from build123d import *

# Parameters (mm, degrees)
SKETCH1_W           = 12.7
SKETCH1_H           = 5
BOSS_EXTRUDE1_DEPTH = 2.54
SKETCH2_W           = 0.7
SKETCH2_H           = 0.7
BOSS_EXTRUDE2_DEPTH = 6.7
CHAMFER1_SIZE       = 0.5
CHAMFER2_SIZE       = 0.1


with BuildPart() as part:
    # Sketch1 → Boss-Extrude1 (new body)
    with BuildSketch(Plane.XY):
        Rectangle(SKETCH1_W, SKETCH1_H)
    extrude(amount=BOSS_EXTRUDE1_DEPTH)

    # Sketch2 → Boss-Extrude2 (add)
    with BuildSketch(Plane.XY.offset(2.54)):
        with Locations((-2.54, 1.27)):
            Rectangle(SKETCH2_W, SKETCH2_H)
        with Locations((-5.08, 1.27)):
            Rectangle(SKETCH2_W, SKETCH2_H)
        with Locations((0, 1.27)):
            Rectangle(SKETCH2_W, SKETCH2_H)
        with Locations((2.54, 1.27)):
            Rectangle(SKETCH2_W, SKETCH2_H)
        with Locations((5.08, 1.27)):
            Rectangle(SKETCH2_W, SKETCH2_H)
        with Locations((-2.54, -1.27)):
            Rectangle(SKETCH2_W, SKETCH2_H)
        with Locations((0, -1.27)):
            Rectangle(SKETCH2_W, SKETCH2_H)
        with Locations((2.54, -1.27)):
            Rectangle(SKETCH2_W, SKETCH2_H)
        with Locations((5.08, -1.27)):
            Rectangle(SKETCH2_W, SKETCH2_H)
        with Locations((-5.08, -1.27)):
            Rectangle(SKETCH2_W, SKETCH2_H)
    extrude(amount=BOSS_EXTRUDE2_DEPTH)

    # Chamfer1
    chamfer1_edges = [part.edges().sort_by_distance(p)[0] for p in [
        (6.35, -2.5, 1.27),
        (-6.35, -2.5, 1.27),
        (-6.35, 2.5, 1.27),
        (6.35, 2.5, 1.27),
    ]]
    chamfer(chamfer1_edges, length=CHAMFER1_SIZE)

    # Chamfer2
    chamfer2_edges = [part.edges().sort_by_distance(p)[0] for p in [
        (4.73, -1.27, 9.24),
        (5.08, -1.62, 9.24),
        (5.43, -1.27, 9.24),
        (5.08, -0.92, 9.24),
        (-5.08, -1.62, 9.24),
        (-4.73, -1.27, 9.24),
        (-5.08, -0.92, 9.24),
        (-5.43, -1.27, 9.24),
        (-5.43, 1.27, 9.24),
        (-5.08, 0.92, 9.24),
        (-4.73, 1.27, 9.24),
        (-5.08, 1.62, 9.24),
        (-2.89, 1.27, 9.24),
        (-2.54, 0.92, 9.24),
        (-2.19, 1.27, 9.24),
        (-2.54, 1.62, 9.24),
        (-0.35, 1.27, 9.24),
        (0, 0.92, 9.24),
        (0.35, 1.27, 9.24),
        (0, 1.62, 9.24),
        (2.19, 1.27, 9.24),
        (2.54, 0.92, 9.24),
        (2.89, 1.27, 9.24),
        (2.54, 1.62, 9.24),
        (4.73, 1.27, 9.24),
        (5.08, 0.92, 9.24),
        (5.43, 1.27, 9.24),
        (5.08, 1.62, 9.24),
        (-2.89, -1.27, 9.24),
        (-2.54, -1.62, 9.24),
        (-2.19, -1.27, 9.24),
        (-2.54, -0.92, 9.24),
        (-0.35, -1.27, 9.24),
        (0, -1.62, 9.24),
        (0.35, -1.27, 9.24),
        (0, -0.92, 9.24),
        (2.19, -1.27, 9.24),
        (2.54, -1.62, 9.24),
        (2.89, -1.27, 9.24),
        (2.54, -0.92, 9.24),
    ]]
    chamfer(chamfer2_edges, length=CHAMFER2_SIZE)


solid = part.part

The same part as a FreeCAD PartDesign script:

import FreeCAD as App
import Part
import Sketcher
from FreeCAD import Vector


def edges_at(feature, points):
    """Names of the edges that pass closest to the given points."""
    edges = feature.Shape.Edges
    near = lambda p: min(range(len(edges)), key=lambda i: edges[i].distToShape(Part.Vertex(*p))[0])
    return sorted({f"Edge{near(p) + 1}" for p in points})


def add_polygon(sketch, points):
    """Adds a closed chain of lines whose ends are joined by coincident constraints."""
    first, n = sketch.GeometryCount, len(points)
    for a, b in zip(points, points[1:] + points[:1]):
        sketch.addGeometry(Part.LineSegment(App.Vector(*a, 0), App.Vector(*b, 0)), False)
    for i in range(n):
        sketch.addConstraint(Sketcher.Constraint("Coincident", first + i, 2, first + (i + 1) % n, 1))

doc = App.newDocument("Part")
body = doc.addObject("PartDesign::Body", "Body")

# Sketch on XY plane
sketch1 = body.newObject("Sketcher::SketchObject", "Sketch")
sketch1.AttachmentSupport = (doc.getObject("XY_Plane"), [""])
sketch1.MapMode = "FlatFace"
add_polygon(sketch1, [(-6, 2), (-6, -2), (6, -2), (6, 2)])  # lines 0-3
sketch1.addConstraint([
    Sketcher.Constraint("Vertical", 0),
    Sketcher.Constraint("Horizontal", 1),
    Sketcher.Constraint("Vertical", 2),
    Sketcher.Constraint("Horizontal", 3),
    Sketcher.Constraint("Symmetric", 0, 2, 2, 2, -1, 1),
    Sketcher.Constraint("DistanceY", 0, 2, 0, 1, 5.0),
    Sketcher.Constraint("DistanceX", 1, 1, 1, 2, 12.7),
])
pad1 = body.newObject("PartDesign::Pad", "Pad")
pad1.Profile = sketch1
pad1.Length = 2.54

# Sketch on XY plane
sketch2 = body.newObject("Sketcher::SketchObject", "Sketch001")
sketch2.AttachmentSupport = (doc.getObject("XY_Plane"), [""])
sketch2.MapMode = "FlatFace"
sketch2.AttachmentOffset = App.Placement(Vector(0, 0, 2.54), App.Rotation())
add_polygon(sketch2, [(-2.9, 1.6), (-2.9, 0.9), (-2.2, 0.9), (-2.2, 1.6)])  # lines 0-3
add_polygon(sketch2, [(-5.4, 1.6), (-5.4, 0.9), (-4.7, 0.9), (-4.7, 1.6)])  # lines 4-7
add_polygon(sketch2, [(-0.3, 1.6), (-0.3, 0.9), (0.3, 0.9), (0.3, 1.6)])  # lines 8-11
add_polygon(sketch2, [(2.2, 1.6), (2.2, 0.9), (2.9, 0.9), (2.9, 1.6)])  # lines 12-15
add_polygon(sketch2, [(4.7, 1.6), (4.7, 0.9), (5.4, 0.9), (5.4, 1.6)])  # lines 16-19
add_polygon(sketch2, [(-2.9, -0.9), (-2.9, -1.6), (-2.2, -1.6), (-2.2, -0.9)])  # lines 20-23
add_polygon(sketch2, [(-0.3, -0.9), (-0.3, -1.6), (0.3, -1.6), (0.3, -0.9)])  # lines 24-27
add_polygon(sketch2, [(2.2, -0.9), (2.2, -1.6), (2.9, -1.6), (2.9, -0.9)])  # lines 28-31
add_polygon(sketch2, [(4.7, -0.9), (4.7, -1.6), (5.4, -1.6), (5.4, -0.9)])  # lines 32-35
add_polygon(sketch2, [(-5.4, -0.9), (-5.4, -1.6), (-4.7, -1.6), (-4.7, -0.9)])  # lines 36-39
sketch2.addConstraint([
    Sketcher.Constraint("Vertical", 0),
    Sketcher.Constraint("Horizontal", 1),
    Sketcher.Constraint("Vertical", 2),
    Sketcher.Constraint("Horizontal", 3),
    Sketcher.Constraint("Vertical", 4),
    Sketcher.Constraint("Horizontal", 5),
    Sketcher.Constraint("Vertical", 6),
    Sketcher.Constraint("Horizontal", 7),
    Sketcher.Constraint("Vertical", 8),
    Sketcher.Constraint("Horizontal", 9),
    Sketcher.Constraint("Vertical", 10),
    Sketcher.Constraint("Horizontal", 11),
    Sketcher.Constraint("Vertical", 12),
    Sketcher.Constraint("Horizontal", 13),
    Sketcher.Constraint("Vertical", 14),
    Sketcher.Constraint("Horizontal", 15),
    Sketcher.Constraint("Vertical", 16),
    Sketcher.Constraint("Horizontal", 17),
    Sketcher.Constraint("Vertical", 18),
    Sketcher.Constraint("Horizontal", 19),
    Sketcher.Constraint("Vertical", 20),
    Sketcher.Constraint("Horizontal", 21),
    Sketcher.Constraint("Vertical", 22),
    Sketcher.Constraint("Horizontal", 23),
    Sketcher.Constraint("Vertical", 24),
    Sketcher.Constraint("Horizontal", 25),
    Sketcher.Constraint("Vertical", 26),
    Sketcher.Constraint("Horizontal", 27),
    Sketcher.Constraint("Vertical", 28),
    Sketcher.Constraint("Horizontal", 29),
    Sketcher.Constraint("Vertical", 30),
    Sketcher.Constraint("Horizontal", 31),
    Sketcher.Constraint("Vertical", 32),
    Sketcher.Constraint("Horizontal", 33),
    Sketcher.Constraint("Vertical", 34),
    Sketcher.Constraint("Horizontal", 35),
    Sketcher.Constraint("Vertical", 36),
    Sketcher.Constraint("Horizontal", 37),
    Sketcher.Constraint("Vertical", 38),
    Sketcher.Constraint("Horizontal", 39),
    Sketcher.Constraint("Symmetric", 14, 2, 20, 2, -1, 1),
    Sketcher.Constraint("Symmetric", 12, 2, 22, 2, -1, 1),
    Sketcher.Constraint("Symmetric", 10, 2, 24, 2, -1, 1),
    Sketcher.Constraint("Symmetric", 8, 2, 26, 2, -1, 1),
    Sketcher.Constraint("Symmetric", 2, 2, 28, 2, -1, 1),
    Sketcher.Constraint("Symmetric", 0, 2, 30, 2, -1, 1),
    Sketcher.Constraint("Symmetric", 6, 2, 32, 2, -1, 1),
    Sketcher.Constraint("Symmetric", 4, 2, 34, 2, -1, 1),
    Sketcher.Constraint("Symmetric", 18, 2, 36, 2, -1, 1),
    Sketcher.Constraint("Symmetric", 16, 2, 38, 2, -1, 1),
    Sketcher.Constraint("Symmetric", 1, 2, 12, 2, -2),
    Sketcher.Constraint("Symmetric", 3, 2, 14, 2, -2),
    Sketcher.Constraint("Symmetric", 5, 2, 16, 2, -2),
    Sketcher.Constraint("Symmetric", 7, 2, 18, 2, -2),
    Sketcher.Constraint("Horizontal", 1, 2, 4, 2),
    Sketcher.Constraint("Horizontal", 3, 2, 6, 2),
    Sketcher.Constraint("Horizontal", 5, 2, 8, 2),
    Sketcher.Constraint("Horizontal", 7, 2, 10, 2),
    Sketcher.Constraint("Vertical", 11, 2, 24, 2),
    Sketcher.Constraint("Equal", 3, 5),
    Sketcher.Constraint("Equal", 7, 9),
    Sketcher.Constraint("Equal", 39, 0),
    Sketcher.Constraint("DistanceX", 1, 1, 1, 2, 0.7),
    Sketcher.Constraint("DistanceX", 0, 2, -1, 1, 2.89),
    Sketcher.Constraint("DistanceY", -1, 1, 0, 2, 0.92),
    Sketcher.Constraint("DistanceX", 4, 2, -1, 1, 5.43),
])
pad2 = body.newObject("PartDesign::Pad", "Pad001")
pad2.Profile = sketch2
pad2.Length = 6.7
doc.recompute()

chamfer = body.newObject("PartDesign::Chamfer", "Chamfer")
chamfer.Base = (pad2, edges_at(pad2, [
    (6.35, -2.5, 1.27),
    (-6.35, -2.5, 1.27),
    (-6.35, 2.5, 1.27),
    (6.35, 2.5, 1.27),
]))
chamfer.Size = 0.5
doc.recompute()

chamfer2 = body.newObject("PartDesign::Chamfer", "Chamfer001")
chamfer2.Base = (chamfer, edges_at(chamfer, [
    (4.73, -1.27, 9.24),
    (5.08, -1.62, 9.24),
    (5.43, -1.27, 9.24),
    (5.08, -0.92, 9.24),
    (-5.08, -1.62, 9.24),
    (-4.73, -1.27, 9.24),
    (-5.08, -0.92, 9.24),
    (-5.43, -1.27, 9.24),
    (-5.43, 1.27, 9.24),
    (-5.08, 0.92, 9.24),
    (-4.73, 1.27, 9.24),
    (-5.08, 1.62, 9.24),
    (-2.89, 1.27, 9.24),
    (-2.54, 0.92, 9.24),
    (-2.19, 1.27, 9.24),
    (-2.54, 1.62, 9.24),
    (-0.35, 1.27, 9.24),
    (0, 0.92, 9.24),
    (0.35, 1.27, 9.24),
    (0, 1.62, 9.24),
    (2.19, 1.27, 9.24),
    (2.54, 0.92, 9.24),
    (2.89, 1.27, 9.24),
    (2.54, 1.62, 9.24),
    (4.73, 1.27, 9.24),
    (5.08, 0.92, 9.24),
    (5.43, 1.27, 9.24),
    (5.08, 1.62, 9.24),
    (-2.89, -1.27, 9.24),
    (-2.54, -1.62, 9.24),
    (-2.19, -1.27, 9.24),
    (-2.54, -0.92, 9.24),
    (-0.35, -1.27, 9.24),
    (0, -1.62, 9.24),
    (0.35, -1.27, 9.24),
    (0, -0.92, 9.24),
    (2.19, -1.27, 9.24),
    (2.54, -1.62, 9.24),
    (2.89, -1.27, 9.24),
    (2.54, -0.92, 9.24),
]))
chamfer2.Size = 0.1

doc.recompute()
